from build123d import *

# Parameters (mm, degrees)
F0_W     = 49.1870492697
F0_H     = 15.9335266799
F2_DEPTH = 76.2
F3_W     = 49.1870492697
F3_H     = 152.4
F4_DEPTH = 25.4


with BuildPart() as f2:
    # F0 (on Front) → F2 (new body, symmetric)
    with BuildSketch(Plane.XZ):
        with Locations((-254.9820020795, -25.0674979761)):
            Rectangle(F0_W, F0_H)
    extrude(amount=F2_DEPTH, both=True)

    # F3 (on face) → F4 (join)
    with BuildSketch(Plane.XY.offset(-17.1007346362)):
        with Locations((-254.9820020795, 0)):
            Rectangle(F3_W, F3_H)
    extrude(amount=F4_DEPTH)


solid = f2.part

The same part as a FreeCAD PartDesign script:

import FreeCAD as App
import Part
import Sketcher
Q = App.Units.Quantity


def add_polygon(sketch, points):
    """Adds a closed chain of lines whose ends are joined by coincident constraints."""
    first, n = sketch.GeometryCount, len(points)
    for a, b in zip(points, points[1:] + points[:1]):
        sketch.addGeometry(Part.LineSegment(App.Vector(*a, 0), App.Vector(*b, 0)), False)
    for i in range(n):
        sketch.addConstraint(Sketcher.Constraint("Coincident", first + i, 2, first + (i + 1) % n, 1))

doc = App.newDocument("Part")
params = doc.addObject("Spreadsheet::Sheet", "Params")
for row, (alias, value) in enumerate([
    ("pad1_length", "6 in"),
    ("sketch2_height", "6 in"),
    ("pad2_length", "1 in"),
], start=1):
    params.set(f"A{row}", alias)
    params.set(f"B{row}", "=" + value)
    params.setAlias(f"B{row}", alias)

body = doc.addObject("PartDesign::Body", "Body")

sketch1 = body.newObject("Sketcher::SketchObject", "Sketch")
sketch1.AttachmentSupport = (doc.getObject("XZ_Plane"), [""])
sketch1.MapMode = "FlatFace"
add_polygon(sketch1, [(-280, -17), (-280, -33), (-230, -33), (-230, -17)])
sketch1.addConstraint([
    Sketcher.Constraint("Vertical", 0),
    Sketcher.Constraint("Horizontal", 1),
    Sketcher.Constraint("Vertical", 2),
    Sketcher.Constraint("Horizontal", 3),
    Sketcher.Constraint("DistanceX", 1, 1, 1, 2, Q("49.187049 mm")),
    Sketcher.Constraint("DistanceY", 0, 2, 0, 1, Q("15.933527 mm")),
    Sketcher.Constraint("DistanceY", 0, 2, -1, 1, Q("33.034261 mm")),
    Sketcher.Constraint("DistanceX", 0, 2, -1, 1, Q("279.575527 mm")),
])
pad1 = body.newObject("PartDesign::Pad", "Pad")
pad1.Profile = sketch1
pad1.setExpression("Length", "Params.pad1_length")
pad1.Midplane = True

sketch2 = body.newObject("Sketcher::SketchObject", "Sketch001")
sketch2.AttachmentSupport = (doc.getObject("XY_Plane"), [""])
sketch2.MapMode = "FlatFace"
sketch2.AttachmentOffset = App.Placement(App.Vector(0, 0, -17.100735), App.Rotation())
add_polygon(sketch2, [(-280, 76), (-280, -76), (-230, -76), (-230, 76)])
sketch2.addConstraint([
    Sketcher.Constraint("Vertical", 0),
    Sketcher.Constraint("Horizontal", 1),
    Sketcher.Constraint("Vertical", 2),
    Sketcher.Constraint("Horizontal", 3),
    Sketcher.Constraint("DistanceY", 0, 2, 0, 1, Q("6 in")),
    Sketcher.Constraint("DistanceY", 0, 2, -1, 1, Q("3 in")),
    Sketcher.Constraint("DistanceX", 1, 1, 1, 2, Q("49.187049 mm")),
    Sketcher.Constraint("DistanceX", 0, 2, -1, 1, Q("279.575527 mm")),
])
sketch2.setExpression("Constraints[8]", "Params.sketch2_height")
pad2 = body.newObject("PartDesign::Pad", "Pad001")
pad2.Profile = sketch2
pad2.setExpression("Length", "Params.pad2_length")

doc.recompute()
